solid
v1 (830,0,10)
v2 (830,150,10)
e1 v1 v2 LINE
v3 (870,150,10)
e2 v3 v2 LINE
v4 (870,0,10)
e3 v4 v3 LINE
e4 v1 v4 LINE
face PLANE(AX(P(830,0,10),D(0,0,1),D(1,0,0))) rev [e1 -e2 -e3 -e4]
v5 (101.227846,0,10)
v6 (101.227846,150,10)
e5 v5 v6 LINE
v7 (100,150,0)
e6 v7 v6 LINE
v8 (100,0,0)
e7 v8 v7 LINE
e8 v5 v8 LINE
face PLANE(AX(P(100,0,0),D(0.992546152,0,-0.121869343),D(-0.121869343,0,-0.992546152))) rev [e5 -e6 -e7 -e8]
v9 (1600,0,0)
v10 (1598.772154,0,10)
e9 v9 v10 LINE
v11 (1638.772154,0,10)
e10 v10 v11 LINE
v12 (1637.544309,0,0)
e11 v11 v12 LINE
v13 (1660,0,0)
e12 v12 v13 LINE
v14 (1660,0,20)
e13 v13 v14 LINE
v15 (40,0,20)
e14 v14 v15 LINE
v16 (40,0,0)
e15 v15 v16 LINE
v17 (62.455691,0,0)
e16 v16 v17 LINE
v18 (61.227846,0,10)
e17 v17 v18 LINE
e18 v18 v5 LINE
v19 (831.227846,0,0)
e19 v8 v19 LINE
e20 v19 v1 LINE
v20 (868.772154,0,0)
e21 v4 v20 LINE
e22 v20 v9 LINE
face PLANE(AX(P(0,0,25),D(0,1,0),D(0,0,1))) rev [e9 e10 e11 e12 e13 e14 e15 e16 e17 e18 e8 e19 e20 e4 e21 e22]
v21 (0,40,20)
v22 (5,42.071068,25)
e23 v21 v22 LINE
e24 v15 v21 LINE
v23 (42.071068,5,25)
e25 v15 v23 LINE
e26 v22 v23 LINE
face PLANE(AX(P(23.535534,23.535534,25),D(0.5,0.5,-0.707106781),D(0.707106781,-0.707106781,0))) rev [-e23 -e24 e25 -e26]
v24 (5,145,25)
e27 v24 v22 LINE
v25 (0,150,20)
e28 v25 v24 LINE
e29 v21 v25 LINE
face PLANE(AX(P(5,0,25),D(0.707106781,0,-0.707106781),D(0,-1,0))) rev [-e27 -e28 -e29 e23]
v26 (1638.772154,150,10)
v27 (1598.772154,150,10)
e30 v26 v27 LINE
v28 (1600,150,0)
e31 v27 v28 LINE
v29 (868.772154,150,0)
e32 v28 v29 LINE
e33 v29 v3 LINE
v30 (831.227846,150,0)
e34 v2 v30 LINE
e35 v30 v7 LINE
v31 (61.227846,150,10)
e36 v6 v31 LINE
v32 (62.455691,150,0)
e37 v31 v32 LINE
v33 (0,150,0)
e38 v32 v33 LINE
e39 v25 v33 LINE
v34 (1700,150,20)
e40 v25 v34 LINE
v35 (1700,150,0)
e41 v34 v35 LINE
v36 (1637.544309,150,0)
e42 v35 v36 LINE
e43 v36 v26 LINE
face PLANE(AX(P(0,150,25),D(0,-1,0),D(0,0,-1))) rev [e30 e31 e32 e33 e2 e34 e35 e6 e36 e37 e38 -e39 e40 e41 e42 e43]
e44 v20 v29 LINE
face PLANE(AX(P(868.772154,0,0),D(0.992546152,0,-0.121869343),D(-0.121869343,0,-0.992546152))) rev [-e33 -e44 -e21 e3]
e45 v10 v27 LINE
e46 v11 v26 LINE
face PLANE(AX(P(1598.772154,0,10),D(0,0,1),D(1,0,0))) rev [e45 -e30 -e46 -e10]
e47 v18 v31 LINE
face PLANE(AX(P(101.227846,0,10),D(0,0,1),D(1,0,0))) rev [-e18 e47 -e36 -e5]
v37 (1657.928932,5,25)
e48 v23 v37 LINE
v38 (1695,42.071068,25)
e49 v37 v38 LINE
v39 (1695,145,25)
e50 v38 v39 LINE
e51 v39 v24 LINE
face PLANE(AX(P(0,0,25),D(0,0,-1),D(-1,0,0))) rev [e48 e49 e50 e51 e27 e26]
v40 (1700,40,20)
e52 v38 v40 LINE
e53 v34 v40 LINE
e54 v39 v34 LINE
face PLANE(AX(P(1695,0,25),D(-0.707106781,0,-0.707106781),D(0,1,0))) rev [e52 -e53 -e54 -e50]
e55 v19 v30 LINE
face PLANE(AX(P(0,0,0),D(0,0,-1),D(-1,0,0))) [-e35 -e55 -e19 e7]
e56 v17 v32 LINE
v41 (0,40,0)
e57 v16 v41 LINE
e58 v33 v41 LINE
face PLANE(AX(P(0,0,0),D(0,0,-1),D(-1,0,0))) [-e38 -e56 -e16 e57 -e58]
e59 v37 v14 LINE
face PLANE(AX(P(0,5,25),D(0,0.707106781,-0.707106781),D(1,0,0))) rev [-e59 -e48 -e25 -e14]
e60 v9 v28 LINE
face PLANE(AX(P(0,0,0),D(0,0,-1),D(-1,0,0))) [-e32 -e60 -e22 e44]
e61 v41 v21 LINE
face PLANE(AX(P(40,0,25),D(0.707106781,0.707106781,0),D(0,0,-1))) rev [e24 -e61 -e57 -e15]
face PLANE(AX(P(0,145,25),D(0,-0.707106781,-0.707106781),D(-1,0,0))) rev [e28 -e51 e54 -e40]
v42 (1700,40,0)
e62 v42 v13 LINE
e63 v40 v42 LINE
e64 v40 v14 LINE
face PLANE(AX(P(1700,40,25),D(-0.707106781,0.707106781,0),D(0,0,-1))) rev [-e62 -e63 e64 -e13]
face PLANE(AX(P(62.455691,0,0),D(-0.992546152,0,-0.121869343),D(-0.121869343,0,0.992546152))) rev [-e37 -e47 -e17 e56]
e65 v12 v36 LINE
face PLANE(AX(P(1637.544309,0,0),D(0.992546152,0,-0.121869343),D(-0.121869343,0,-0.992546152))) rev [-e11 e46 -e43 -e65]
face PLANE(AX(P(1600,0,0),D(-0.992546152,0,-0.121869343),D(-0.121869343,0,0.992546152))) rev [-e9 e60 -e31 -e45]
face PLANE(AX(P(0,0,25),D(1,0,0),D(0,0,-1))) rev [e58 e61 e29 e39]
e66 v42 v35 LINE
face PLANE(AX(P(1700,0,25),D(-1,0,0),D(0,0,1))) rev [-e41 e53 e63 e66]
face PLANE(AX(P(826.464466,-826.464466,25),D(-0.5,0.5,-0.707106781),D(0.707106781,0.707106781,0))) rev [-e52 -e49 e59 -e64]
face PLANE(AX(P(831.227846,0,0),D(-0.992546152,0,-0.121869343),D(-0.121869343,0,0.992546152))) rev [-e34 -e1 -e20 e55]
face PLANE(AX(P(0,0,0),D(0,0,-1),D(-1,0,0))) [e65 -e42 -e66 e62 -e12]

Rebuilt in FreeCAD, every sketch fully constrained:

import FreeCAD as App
import Part
import Sketcher

V = App.Vector
Q = App.Units.Quantity


def edges_at(feature, points):
    """Names of the edges that pass closest to the given points."""
    edges = feature.Shape.Edges
    near = lambda p: min(range(len(edges)), key=lambda i: edges[i].distToShape(Part.Vertex(*p))[0])
    return sorted({f"Edge{near(p) + 1}" for p in points})

doc = App.newDocument("Part")
body = doc.addObject("PartDesign::Body", "Body")

sketch1 = body.newObject("Sketcher::SketchObject", "Sketch")
sketch1.AttachmentSupport = (doc.getObject("XY_Plane"), [""])
sketch1.MapMode = "FlatFace"
sketch1.addGeometry(Part.LineSegment(V(0, 150, 0), V(0, 0, 0)), False)
sketch1.addGeometry(Part.LineSegment(V(0, 0, 0), V(1700, 0, 0)), False)
sketch1.addGeometry(Part.LineSegment(V(1700, 0, 0), V(1700, 150, 0)), False)
sketch1.addGeometry(Part.LineSegment(V(1700, 150, 0), V(0, 150, 0)), False)
sketch1.addConstraint(Sketcher.Constraint("Coincident", 0, 2, 1, 1))
sketch1.addConstraint(Sketcher.Constraint("Coincident", 1, 2, 2, 1))
sketch1.addConstraint(Sketcher.Constraint("Coincident", 2, 2, 3, 1))
sketch1.addConstraint(Sketcher.Constraint("Coincident", 3, 2, 0, 1))
sketch1.addConstraint(Sketcher.Constraint("Vertical", 0))
sketch1.addConstraint(Sketcher.Constraint("Horizontal", 1))
sketch1.addConstraint(Sketcher.Constraint("Vertical", 2))
sketch1.addConstraint(Sketcher.Constraint("Horizontal", 3))
sketch1.addConstraint(Sketcher.Constraint("Coincident", 0, 2, -1, 1))
sketch1.addConstraint(Sketcher.Constraint("DistanceX", 1, 1, 1, 2, 1700.0))
sketch1.addConstraint(Sketcher.Constraint("DistanceY", 0, 2, 0, 1, 150.0))
pad1 = body.newObject("PartDesign::Pad", "Pad")
pad1.Profile = sketch1
pad1.Length = 25

sketch2 = body.newObject("Sketcher::SketchObject", "Sketch001")
sketch2.AttachmentSupport = (doc.getObject("XZ_Plane"), [""])
sketch2.MapMode = "FlatFace"
sketch2.AttachmentOffset = App.Placement(V(0, 0, -150), App.Rotation())
sketch2.addGeometry(Part.LineSegment(V(101, 10, 0), V(100, 0, 0)), False)
sketch2.addGeometry(Part.LineSegment(V(100, 0, 0), V(62, 0, 0)), False)
sketch2.addGeometry(Part.LineSegment(V(62, 0, 0), V(61, 10, 0)), False)
sketch2.addGeometry(Part.LineSegment(V(61, 10, 0), V(101, 10, 0)), False)
sketch2.addGeometry(Part.LineSegment(V(1639, 10, 0), V(1638, 0, 0)), False)
sketch2.addGeometry(Part.LineSegment(V(1638, 0, 0), V(1600, 0, 0)), False)
sketch2.addGeometry(Part.LineSegment(V(1600, 0, 0), V(1599, 10, 0)), False)
sketch2.addGeometry(Part.LineSegment(V(1599, 10, 0), V(1639, 10, 0)), False)
sketch2.addGeometry(Part.LineSegment(V(869, 0, 0), V(831, 0, 0)), False)
sketch2.addGeometry(Part.LineSegment(V(831, 0, 0), V(830, 10, 0)), False)
sketch2.addGeometry(Part.LineSegment(V(830, 10, 0), V(870, 10, 0)), False)
sketch2.addGeometry(Part.LineSegment(V(870, 10, 0), V(869, 0, 0)), False)
sketch2.addConstraint(Sketcher.Constraint("Coincident", 0, 2, 1, 1))
sketch2.addConstraint(Sketcher.Constraint("Coincident", 1, 2, 2, 1))
sketch2.addConstraint(Sketcher.Constraint("Coincident", 2, 2, 3, 1))
sketch2.addConstraint(Sketcher.Constraint("Coincident", 3, 2, 0, 1))
sketch2.addConstraint(Sketcher.Constraint("Coincident", 4, 2, 5, 1))
sketch2.addConstraint(Sketcher.Constraint("Coincident", 5, 2, 6, 1))
sketch2.addConstraint(Sketcher.Constraint("Coincident", 6, 2, 7, 1))
sketch2.addConstraint(Sketcher.Constraint("Coincident", 7, 2, 4, 1))
sketch2.addConstraint(Sketcher.Constraint("Coincident", 8, 2, 9, 1))
sketch2.addConstraint(Sketcher.Constraint("Coincident", 9, 2, 10, 1))
sketch2.addConstraint(Sketcher.Constraint("Coincident", 10, 2, 11, 1))
sketch2.addConstraint(Sketcher.Constraint("Coincident", 11, 2, 8, 1))
sketch2.addConstraint(Sketcher.Constraint("Horizontal", 1))
sketch2.addConstraint(Sketcher.Constraint("Horizontal", 3))
sketch2.addConstraint(Sketcher.Constraint("Horizontal", 5))
sketch2.addConstraint(Sketcher.Constraint("Horizontal", 7))
sketch2.addConstraint(Sketcher.Constraint("Horizontal", 8))
sketch2.addConstraint(Sketcher.Constraint("Horizontal", 10))
sketch2.addConstraint(Sketcher.Constraint("PointOnObject", 0, 2, -1))
sketch2.addConstraint(Sketcher.Constraint("PointOnObject", 4, 2, -1))
sketch2.addConstraint(Sketcher.Constraint("PointOnObject", 8, 2, -1))
sketch2.addConstraint(Sketcher.Constraint("Parallel", 0, 4))
sketch2.addConstraint(Sketcher.Constraint("Parallel", 2, 6))
sketch2.addConstraint(Sketcher.Constraint("Parallel", 6, 9))
sketch2.addConstraint(Sketcher.Constraint("Parallel", 4, 11))
sketch2.addConstraint(Sketcher.Constraint("Horizontal", 3, 2, 6, 2))
sketch2.addConstraint(Sketcher.Constraint("Horizontal", 7, 2, 9, 2))
sketch2.addConstraint(Sketcher.Constraint("Equal", 1, 5))
sketch2.addConstraint(Sketcher.Constraint("Equal", 5, 8))
sketch2.addConstraint(Sketcher.Constraint("Equal", 0, 2))
sketch2.addConstraint(Sketcher.Constraint("DistanceX", 3, 1, 3, 2, 40.0))
sketch2.addConstraint(Sketcher.Constraint("Angle", 0, Q("-97 deg")))
sketch2.addConstraint(Sketcher.Constraint("DistanceX", -1, 1, 0, 2, 100.0))
sketch2.addConstraint(Sketcher.Constraint("DistanceY", -1, 1, 2, 2, 10.0))
sketch2.addConstraint(Sketcher.Constraint("DistanceX", -1, 1, 5, 2, 1600.0))
sketch2.addConstraint(Sketcher.Constraint("DistanceX", -1, 1, 9, 2, 830.0))
pocket1 = body.newObject("PartDesign::Pocket", "Pocket")
pocket1.Profile = sketch2
pocket1.Type = "ThroughAll"
pocket1.Midplane = True
doc.recompute()

chamfer = body.newObject("PartDesign::Chamfer", "Chamfer")
chamfer.Base = (pocket1, edges_at(pocket1, [(1700, 0, 12.5), (0, 0, 12.5)]))
chamfer.Size = 40
doc.recompute()

chamfer2 = body.newObject("PartDesign::Chamfer", "Chamfer001")
chamfer2.Base = (chamfer, edges_at(chamfer, [
    (850, 150, 25),
    (0, 95, 25),
    (850, 0, 25),
    (1700, 95, 25),
    (1680, 20, 25),
    (20, 20, 25),
]))
chamfer2.Size = 5

doc.recompute()
